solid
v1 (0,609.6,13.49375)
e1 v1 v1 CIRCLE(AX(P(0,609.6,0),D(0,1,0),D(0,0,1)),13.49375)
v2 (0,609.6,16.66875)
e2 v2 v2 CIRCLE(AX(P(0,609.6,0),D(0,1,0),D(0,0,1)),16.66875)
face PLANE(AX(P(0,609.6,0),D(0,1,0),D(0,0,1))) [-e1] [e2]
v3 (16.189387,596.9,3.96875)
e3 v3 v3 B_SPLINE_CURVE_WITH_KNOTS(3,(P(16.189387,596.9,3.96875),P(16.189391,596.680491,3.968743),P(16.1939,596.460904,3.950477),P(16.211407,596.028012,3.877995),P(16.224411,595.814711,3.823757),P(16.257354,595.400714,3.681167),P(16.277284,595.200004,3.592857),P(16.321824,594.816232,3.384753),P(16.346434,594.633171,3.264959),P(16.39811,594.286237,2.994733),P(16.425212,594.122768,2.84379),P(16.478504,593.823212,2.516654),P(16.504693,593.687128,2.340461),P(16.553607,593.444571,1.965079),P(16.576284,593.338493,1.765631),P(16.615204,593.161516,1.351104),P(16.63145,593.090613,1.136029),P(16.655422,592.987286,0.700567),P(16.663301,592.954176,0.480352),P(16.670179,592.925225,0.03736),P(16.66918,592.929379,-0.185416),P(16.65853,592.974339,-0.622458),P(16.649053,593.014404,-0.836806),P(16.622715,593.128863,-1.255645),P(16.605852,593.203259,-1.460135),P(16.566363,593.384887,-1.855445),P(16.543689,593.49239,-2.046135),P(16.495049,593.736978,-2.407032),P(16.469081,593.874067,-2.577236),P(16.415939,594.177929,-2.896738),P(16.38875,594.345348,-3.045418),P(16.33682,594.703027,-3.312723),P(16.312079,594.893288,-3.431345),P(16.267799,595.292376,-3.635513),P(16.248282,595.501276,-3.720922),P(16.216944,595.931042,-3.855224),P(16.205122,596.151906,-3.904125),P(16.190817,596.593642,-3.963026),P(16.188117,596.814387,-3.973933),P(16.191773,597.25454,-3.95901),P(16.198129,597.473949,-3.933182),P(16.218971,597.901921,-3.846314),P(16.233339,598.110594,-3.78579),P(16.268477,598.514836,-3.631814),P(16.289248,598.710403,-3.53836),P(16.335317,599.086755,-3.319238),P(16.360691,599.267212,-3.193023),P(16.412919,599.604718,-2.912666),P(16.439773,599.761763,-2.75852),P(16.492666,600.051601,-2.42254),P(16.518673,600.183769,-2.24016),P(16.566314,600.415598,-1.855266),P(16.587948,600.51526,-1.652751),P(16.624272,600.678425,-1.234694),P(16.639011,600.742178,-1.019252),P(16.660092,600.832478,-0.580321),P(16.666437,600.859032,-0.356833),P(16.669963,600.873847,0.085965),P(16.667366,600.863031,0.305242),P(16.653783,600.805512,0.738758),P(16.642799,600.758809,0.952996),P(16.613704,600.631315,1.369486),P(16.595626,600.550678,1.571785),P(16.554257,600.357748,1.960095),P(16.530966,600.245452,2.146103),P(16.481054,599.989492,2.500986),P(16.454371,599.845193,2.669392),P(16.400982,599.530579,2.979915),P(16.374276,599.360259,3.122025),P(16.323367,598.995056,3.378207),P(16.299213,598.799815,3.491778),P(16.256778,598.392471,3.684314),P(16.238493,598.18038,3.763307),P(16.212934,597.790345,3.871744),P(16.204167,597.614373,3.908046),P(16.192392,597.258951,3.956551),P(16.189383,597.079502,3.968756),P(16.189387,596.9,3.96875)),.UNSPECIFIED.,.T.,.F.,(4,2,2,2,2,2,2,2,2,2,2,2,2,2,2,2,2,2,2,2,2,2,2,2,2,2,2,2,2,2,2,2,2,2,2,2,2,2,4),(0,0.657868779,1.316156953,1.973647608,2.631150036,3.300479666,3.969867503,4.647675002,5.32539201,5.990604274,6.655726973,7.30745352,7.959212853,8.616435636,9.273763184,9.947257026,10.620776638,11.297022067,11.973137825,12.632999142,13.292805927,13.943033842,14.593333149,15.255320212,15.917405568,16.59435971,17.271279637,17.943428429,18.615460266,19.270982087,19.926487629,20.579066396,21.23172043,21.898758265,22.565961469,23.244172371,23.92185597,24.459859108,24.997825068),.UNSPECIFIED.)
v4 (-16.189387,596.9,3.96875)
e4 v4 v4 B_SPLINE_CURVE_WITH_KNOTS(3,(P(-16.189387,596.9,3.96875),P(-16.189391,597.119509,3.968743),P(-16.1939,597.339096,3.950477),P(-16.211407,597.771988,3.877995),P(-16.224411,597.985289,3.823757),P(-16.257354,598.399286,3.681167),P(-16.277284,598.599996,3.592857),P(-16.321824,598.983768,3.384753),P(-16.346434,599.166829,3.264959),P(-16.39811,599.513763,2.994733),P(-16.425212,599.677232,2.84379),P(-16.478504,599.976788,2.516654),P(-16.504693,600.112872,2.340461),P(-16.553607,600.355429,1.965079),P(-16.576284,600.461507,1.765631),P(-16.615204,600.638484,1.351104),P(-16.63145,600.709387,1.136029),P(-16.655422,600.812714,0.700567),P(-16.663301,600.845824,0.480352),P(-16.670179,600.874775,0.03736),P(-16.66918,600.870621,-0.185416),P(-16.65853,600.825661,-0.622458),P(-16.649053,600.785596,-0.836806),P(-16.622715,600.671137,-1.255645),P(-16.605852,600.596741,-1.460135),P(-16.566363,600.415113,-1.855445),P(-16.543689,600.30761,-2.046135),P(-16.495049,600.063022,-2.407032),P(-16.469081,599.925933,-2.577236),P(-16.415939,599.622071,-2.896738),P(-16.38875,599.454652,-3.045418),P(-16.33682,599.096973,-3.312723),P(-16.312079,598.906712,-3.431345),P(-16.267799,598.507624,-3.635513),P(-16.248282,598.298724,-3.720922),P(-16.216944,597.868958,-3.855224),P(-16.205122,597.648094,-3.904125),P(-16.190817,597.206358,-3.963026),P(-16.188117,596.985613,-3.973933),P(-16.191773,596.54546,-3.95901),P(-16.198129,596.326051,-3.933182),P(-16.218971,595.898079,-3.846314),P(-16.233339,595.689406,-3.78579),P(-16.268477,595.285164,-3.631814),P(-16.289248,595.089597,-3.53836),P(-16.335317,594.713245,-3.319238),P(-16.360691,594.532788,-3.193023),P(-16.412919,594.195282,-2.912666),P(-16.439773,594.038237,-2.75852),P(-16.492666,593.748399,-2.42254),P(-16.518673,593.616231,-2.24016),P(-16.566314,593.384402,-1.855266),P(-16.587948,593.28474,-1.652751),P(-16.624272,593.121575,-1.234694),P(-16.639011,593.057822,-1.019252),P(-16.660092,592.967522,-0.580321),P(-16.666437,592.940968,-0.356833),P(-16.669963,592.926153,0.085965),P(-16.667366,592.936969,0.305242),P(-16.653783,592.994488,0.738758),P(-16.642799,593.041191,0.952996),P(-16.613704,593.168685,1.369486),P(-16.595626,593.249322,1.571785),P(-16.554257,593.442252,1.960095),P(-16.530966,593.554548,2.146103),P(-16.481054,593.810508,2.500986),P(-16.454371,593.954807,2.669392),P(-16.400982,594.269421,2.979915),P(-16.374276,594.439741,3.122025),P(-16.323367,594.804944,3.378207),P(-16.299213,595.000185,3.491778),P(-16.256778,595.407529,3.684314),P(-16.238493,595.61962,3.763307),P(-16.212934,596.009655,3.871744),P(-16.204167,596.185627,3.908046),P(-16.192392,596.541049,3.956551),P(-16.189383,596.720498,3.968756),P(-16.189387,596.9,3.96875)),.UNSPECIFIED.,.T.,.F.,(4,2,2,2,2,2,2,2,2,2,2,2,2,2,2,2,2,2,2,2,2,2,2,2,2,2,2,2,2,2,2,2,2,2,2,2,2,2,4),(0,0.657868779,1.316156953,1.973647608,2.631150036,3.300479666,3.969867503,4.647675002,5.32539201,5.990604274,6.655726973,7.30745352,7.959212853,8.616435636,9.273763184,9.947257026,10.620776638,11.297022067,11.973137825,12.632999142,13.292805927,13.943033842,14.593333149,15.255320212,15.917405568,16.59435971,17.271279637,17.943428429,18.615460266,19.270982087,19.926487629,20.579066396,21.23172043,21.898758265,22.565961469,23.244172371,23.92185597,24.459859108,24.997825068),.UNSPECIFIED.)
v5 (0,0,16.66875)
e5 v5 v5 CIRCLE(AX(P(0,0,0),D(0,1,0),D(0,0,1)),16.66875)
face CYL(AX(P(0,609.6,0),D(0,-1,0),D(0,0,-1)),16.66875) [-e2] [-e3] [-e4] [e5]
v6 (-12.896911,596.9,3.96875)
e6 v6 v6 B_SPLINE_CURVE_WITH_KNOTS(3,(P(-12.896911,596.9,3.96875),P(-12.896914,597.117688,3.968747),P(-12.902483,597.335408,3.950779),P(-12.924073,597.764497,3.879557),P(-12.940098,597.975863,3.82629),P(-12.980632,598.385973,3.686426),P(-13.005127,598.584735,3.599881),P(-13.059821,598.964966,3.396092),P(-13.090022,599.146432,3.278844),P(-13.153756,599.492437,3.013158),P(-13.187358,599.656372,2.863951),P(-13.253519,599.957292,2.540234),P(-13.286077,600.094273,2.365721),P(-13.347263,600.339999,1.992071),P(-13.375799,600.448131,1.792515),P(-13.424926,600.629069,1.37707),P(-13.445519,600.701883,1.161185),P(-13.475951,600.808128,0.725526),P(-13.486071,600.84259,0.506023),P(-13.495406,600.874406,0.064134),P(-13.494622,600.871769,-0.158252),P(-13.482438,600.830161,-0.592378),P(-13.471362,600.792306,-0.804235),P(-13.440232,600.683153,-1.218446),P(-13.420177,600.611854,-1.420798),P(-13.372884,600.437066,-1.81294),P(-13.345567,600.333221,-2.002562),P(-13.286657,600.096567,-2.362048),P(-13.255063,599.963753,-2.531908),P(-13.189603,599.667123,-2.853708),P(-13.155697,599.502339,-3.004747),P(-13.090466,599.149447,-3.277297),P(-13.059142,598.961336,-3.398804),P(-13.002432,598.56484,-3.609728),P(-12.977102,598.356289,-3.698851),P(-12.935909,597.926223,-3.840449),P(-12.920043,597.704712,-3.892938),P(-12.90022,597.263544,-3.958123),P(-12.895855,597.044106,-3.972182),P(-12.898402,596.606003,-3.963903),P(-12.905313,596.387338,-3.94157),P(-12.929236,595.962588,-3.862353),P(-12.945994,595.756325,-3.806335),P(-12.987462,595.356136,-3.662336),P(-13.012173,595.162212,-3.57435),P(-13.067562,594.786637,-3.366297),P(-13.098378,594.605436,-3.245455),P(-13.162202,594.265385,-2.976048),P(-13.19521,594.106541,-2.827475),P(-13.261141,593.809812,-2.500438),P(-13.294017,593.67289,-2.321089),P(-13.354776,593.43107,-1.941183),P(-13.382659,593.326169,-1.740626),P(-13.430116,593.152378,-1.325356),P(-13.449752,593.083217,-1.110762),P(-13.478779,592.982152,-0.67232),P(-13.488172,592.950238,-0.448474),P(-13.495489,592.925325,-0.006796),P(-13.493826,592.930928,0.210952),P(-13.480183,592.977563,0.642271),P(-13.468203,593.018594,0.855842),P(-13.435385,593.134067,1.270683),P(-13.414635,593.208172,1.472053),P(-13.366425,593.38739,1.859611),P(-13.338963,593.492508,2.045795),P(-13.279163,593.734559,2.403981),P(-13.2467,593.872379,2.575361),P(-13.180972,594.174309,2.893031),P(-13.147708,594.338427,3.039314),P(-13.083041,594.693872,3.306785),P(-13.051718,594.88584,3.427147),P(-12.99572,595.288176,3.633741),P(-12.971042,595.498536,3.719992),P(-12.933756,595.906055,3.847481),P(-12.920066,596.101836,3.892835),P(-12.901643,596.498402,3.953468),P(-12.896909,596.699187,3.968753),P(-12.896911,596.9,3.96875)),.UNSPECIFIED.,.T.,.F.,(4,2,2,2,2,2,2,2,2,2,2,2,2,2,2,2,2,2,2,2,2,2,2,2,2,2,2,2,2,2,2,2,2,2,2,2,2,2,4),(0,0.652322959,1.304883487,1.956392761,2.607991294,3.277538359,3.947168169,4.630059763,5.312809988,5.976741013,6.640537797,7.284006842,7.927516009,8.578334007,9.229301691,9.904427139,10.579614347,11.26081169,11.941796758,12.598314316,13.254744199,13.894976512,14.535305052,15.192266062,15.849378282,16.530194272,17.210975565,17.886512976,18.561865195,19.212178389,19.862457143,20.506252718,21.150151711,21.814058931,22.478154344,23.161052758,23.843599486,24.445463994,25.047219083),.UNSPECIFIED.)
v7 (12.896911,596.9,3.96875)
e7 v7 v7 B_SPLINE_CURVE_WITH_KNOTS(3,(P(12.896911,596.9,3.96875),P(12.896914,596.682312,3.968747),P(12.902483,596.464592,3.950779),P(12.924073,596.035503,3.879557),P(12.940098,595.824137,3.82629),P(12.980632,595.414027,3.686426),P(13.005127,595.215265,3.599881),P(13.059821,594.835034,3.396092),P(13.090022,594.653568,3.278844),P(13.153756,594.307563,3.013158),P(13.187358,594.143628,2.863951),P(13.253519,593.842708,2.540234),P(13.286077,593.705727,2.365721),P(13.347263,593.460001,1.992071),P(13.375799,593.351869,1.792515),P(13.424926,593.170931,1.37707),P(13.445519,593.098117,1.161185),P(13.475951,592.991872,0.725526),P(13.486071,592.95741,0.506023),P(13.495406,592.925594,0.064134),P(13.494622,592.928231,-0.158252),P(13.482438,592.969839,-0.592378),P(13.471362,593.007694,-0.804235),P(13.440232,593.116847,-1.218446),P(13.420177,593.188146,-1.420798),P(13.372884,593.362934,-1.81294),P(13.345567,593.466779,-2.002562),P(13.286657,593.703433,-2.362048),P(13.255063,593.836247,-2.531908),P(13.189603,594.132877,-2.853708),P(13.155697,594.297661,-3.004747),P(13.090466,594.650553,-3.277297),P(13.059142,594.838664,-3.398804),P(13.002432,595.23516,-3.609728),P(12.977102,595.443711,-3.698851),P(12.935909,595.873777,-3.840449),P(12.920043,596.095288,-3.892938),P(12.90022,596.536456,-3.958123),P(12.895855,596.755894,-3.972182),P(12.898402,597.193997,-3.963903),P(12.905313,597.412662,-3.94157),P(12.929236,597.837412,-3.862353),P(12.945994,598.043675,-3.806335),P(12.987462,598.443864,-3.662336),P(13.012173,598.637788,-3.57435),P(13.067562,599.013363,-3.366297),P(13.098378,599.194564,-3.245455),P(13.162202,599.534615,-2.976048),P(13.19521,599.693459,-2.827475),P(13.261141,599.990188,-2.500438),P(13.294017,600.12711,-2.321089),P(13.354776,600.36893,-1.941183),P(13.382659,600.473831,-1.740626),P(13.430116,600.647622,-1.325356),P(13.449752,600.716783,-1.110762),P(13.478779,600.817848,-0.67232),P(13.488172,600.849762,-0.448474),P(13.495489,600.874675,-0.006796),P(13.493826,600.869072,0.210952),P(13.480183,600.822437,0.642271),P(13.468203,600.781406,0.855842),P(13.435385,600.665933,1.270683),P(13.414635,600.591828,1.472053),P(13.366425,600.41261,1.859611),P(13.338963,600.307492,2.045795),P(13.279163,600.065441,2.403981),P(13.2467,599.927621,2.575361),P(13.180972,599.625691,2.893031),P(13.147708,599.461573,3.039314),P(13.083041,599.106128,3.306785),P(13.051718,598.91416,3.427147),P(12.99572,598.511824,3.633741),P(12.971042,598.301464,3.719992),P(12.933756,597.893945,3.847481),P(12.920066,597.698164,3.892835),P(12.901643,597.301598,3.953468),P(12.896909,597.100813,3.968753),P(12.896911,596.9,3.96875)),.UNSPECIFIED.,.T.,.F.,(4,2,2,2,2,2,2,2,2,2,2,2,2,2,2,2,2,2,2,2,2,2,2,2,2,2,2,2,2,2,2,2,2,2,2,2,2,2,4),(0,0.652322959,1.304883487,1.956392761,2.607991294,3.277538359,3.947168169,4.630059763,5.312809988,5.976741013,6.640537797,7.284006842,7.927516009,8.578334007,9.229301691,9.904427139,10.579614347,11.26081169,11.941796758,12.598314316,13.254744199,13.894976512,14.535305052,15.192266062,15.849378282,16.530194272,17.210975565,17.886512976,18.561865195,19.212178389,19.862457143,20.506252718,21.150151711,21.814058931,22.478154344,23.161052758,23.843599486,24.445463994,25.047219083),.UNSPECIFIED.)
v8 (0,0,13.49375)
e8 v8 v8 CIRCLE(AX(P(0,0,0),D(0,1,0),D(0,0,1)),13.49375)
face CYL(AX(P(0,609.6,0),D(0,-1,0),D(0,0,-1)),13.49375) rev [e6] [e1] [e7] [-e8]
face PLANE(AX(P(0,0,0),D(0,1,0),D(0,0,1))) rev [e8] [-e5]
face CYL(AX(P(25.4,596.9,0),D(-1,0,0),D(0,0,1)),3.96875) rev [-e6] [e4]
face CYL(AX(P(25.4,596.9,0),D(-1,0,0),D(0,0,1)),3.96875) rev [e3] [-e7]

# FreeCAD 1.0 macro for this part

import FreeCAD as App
import Part
import Sketcher
from FreeCAD import Vector
Q = App.Units.Quantity

doc = App.newDocument("Part")
body = doc.addObject("PartDesign::Body", "Body")

# Sketch on XZ plane
sketch1 = doc.addObject("Sketcher::SketchObject", "Sketch")
body.addObject(sketch1)
sketch1.AttachmentSupport = (doc.XZ_Plane, [""])
sketch1.MapMode = "FlatFace"
sketch1.addGeometry(Part.Circle(Vector(0, 0, 0), Vector(0, 0, 1), 16.66875), False)
sketch1.addGeometry(Part.Circle(Vector(0, 0, 0), Vector(0, 0, 1), 13.49375), False)
sketch1.addConstraint(Sketcher.Constraint("Coincident", 0, 3, -1, 1))
sketch1.addConstraint(Sketcher.Constraint("Coincident", 1, 3, -1, 1))
sketch1.addConstraint(Sketcher.Constraint("Diameter", 0, Q("1.3125 in")))
sketch1.addConstraint(Sketcher.Constraint("Diameter", 1, Q("1.0625 in")))
pad1 = doc.addObject("PartDesign::Pad", "Pad")
body.addObject(pad1)
pad1.Profile = sketch1
pad1.Length = Q("24 in")
pad1.Reversed = True

# Sketch on YZ plane
sketch2 = doc.addObject("Sketcher::SketchObject", "Sketch001")
body.addObject(sketch2)
sketch2.AttachmentSupport = (doc.YZ_Plane, [""])
sketch2.MapMode = "FlatFace"
sketch2.addGeometry(Part.Circle(Vector(596.9, 0, 0), Vector(0, 0, 1), 3.96875), False)
sketch2.addConstraint(Sketcher.Constraint("PointOnObject", 0, 3, -1))
sketch2.addConstraint(Sketcher.Constraint("Diameter", 0, Q("0.3125 in")))
sketch2.addConstraint(Sketcher.Constraint("DistanceX", -1, 1, 0, 3, Q("23.5 in")))
pocket1 = doc.addObject("PartDesign::Pocket", "Pocket")
body.addObject(pocket1)
pocket1.Profile = sketch2
pocket1.Type = "ThroughAll"
pocket1.Midplane = True

doc.recompute()
